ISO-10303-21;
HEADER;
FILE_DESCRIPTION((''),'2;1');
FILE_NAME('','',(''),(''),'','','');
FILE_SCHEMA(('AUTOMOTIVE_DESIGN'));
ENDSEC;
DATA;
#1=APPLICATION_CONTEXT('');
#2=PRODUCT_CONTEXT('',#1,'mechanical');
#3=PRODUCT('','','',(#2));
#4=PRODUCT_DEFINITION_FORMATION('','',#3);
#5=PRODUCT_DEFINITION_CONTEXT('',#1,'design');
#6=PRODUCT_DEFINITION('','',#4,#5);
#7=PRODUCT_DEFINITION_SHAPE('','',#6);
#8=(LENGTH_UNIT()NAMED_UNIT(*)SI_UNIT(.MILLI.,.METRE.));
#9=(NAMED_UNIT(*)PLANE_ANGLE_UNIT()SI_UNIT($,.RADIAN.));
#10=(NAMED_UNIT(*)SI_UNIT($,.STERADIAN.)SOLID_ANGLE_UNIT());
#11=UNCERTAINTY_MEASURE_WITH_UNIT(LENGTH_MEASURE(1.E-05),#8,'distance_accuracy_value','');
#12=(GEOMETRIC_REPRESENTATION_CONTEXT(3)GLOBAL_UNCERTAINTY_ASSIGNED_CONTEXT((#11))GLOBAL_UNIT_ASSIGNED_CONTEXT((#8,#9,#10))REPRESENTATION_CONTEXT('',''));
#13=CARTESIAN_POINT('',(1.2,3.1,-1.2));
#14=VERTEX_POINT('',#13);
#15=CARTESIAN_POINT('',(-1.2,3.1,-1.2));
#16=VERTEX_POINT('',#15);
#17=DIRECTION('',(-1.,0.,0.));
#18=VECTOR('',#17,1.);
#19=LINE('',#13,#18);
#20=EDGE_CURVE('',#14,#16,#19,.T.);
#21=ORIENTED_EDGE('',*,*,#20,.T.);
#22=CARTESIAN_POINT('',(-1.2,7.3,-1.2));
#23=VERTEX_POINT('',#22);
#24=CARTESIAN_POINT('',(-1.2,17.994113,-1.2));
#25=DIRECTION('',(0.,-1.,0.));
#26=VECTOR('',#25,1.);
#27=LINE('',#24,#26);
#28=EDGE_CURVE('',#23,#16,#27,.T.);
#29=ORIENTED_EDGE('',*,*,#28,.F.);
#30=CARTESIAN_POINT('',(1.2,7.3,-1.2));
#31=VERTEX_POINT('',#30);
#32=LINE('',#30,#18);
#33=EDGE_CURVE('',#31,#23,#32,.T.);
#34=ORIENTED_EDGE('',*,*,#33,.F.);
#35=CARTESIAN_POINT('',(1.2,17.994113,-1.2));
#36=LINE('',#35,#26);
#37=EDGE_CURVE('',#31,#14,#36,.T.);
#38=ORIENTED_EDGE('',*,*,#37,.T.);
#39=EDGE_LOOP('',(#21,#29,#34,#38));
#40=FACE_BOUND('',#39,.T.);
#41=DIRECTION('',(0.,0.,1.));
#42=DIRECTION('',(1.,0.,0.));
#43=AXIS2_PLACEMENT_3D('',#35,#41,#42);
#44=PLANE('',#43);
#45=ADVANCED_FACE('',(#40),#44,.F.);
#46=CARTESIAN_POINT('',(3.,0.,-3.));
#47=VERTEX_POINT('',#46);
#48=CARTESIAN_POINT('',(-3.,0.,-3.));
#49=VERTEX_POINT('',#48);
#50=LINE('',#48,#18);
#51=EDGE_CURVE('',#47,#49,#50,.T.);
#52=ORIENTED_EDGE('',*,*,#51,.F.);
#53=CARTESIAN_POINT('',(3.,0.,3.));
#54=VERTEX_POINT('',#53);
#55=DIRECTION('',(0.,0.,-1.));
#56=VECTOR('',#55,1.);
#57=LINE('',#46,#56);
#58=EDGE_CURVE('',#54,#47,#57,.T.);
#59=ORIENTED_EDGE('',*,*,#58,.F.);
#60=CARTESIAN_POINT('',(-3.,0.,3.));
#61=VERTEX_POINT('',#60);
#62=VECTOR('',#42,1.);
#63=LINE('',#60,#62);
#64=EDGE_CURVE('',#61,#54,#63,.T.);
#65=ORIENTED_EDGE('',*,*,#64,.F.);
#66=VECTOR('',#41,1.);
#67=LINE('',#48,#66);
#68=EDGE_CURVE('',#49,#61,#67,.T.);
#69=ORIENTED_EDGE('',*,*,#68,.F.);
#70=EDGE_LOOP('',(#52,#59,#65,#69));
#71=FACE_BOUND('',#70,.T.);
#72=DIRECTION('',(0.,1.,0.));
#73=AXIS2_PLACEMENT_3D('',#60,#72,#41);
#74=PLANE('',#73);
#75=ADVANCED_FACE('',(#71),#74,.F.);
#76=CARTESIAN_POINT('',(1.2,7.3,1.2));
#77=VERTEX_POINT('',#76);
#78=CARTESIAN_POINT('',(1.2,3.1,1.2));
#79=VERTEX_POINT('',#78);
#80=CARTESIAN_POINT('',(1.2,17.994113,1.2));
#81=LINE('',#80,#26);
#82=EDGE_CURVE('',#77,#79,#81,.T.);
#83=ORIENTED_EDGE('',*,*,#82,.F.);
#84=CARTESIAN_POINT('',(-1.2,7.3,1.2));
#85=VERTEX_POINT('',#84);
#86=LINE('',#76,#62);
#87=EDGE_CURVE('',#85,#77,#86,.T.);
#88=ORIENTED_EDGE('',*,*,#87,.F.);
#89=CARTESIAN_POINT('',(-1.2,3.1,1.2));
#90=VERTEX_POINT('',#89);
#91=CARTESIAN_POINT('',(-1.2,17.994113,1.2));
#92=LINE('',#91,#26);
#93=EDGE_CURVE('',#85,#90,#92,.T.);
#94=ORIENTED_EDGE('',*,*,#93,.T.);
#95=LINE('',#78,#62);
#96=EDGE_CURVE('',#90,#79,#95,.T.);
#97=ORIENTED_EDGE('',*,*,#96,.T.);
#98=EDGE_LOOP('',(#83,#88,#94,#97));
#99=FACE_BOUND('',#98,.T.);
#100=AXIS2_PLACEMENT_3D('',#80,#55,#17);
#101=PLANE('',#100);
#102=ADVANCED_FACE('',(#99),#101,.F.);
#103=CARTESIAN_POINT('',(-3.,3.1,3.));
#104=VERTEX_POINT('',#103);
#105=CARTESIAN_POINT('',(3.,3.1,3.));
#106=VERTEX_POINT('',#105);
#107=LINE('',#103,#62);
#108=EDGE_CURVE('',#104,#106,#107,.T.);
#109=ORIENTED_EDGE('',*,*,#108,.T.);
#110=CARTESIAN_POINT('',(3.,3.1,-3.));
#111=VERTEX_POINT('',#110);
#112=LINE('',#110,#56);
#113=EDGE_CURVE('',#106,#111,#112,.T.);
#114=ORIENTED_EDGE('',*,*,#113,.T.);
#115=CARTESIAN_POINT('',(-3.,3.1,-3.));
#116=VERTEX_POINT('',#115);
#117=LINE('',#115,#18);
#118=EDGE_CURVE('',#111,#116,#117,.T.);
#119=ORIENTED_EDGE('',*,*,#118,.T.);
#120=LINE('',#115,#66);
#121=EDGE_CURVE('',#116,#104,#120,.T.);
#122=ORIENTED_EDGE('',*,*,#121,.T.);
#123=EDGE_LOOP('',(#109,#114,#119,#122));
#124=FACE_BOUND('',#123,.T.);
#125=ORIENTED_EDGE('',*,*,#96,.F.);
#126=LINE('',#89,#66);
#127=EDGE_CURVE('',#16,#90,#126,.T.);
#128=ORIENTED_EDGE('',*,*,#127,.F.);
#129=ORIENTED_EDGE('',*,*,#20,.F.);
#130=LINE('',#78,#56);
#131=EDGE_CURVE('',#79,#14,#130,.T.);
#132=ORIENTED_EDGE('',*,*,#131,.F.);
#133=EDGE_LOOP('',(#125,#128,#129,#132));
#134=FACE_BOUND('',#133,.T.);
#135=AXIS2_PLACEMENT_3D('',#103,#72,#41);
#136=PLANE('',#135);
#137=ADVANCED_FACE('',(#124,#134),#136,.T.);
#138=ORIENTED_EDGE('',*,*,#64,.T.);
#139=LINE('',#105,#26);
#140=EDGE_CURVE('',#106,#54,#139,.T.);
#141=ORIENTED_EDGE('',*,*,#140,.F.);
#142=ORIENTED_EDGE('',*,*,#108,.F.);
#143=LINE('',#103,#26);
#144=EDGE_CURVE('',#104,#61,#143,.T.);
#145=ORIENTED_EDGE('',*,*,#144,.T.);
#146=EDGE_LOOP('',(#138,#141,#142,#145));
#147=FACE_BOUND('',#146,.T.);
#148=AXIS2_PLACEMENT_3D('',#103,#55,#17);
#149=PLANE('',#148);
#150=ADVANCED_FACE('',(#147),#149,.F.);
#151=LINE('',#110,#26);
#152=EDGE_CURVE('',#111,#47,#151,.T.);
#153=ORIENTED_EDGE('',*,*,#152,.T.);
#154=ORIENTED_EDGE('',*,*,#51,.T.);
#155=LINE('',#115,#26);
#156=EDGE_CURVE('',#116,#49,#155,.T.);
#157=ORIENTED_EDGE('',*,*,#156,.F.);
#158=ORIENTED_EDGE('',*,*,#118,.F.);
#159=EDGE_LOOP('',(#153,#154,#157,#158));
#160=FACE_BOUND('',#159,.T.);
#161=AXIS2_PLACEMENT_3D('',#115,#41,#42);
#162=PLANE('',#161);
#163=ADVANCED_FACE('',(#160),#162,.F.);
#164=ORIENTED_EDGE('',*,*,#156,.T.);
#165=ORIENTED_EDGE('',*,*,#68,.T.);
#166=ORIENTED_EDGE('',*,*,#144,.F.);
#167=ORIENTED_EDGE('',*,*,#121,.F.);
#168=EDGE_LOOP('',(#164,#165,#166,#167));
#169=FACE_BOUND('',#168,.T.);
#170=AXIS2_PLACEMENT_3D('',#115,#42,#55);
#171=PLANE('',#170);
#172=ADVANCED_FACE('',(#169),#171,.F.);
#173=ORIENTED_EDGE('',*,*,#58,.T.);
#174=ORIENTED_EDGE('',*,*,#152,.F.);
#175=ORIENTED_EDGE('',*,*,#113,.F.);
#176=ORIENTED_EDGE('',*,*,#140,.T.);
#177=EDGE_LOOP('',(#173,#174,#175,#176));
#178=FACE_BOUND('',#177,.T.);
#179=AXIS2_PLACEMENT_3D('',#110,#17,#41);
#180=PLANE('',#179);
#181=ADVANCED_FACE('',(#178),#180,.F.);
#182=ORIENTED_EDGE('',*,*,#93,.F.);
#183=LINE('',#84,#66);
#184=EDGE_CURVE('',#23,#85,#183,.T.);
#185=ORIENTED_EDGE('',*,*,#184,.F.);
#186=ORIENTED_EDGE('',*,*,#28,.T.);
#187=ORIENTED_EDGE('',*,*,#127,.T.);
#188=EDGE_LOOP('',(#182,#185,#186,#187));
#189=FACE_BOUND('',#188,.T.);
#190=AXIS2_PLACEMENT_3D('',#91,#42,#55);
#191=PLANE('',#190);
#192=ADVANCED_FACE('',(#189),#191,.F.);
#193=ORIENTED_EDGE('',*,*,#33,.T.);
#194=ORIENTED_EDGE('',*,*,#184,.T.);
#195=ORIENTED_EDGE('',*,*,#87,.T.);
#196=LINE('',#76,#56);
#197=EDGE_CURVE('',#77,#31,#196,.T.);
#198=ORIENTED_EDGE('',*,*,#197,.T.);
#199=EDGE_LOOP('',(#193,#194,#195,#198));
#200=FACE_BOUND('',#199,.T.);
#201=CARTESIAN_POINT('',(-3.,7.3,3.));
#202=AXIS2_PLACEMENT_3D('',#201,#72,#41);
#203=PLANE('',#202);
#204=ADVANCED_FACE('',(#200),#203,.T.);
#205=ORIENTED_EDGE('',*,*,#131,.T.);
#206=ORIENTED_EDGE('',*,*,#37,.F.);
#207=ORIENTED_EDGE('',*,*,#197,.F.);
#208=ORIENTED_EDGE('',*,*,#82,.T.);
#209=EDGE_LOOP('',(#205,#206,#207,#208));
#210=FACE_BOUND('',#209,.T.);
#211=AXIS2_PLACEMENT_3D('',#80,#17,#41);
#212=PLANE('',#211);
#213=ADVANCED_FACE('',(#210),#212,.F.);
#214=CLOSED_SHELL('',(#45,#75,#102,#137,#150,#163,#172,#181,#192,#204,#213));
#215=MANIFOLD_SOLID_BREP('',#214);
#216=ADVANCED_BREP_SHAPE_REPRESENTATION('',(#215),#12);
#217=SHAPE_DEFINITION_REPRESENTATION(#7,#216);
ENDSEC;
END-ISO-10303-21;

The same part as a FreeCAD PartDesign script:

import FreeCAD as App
import Part
import Sketcher

V = App.Vector

doc = App.newDocument("Part")
body = doc.addObject("PartDesign::Body", "Body")

# Sketch on XZ plane
sketch1 = doc.addObject("Sketcher::SketchObject", "Sketch")
body.addObject(sketch1)
sketch1.AttachmentSupport = (doc.XZ_Plane, [""])
sketch1.MapMode = "FlatFace"
sketch1.addGeometry([
    Part.LineSegment(V(-3, -3, 0), V(-3, 3, 0)),
    Part.LineSegment(V(-3, 3, 0), V(3, 3, 0)),
    Part.LineSegment(V(3, 3, 0), V(3, -3, 0)),
    Part.LineSegment(V(3, -3, 0), V(-3, -3, 0)),
], False)
sketch1.addConstraint([
    Sketcher.Constraint("Coincident", 0, 2, 1, 1),
    Sketcher.Constraint("Coincident", 1, 2, 2, 1),
    Sketcher.Constraint("Coincident", 2, 2, 3, 1),
    Sketcher.Constraint("Coincident", 3, 2, 0, 1),
    Sketcher.Constraint("Vertical", 0),
    Sketcher.Constraint("Horizontal", 1),
    Sketcher.Constraint("Vertical", 2),
    Sketcher.Constraint("Horizontal", 3),
    Sketcher.Constraint("Symmetric", 0, 2, 2, 2, -1, 1),
    Sketcher.Constraint("Equal", 3, 0),
    Sketcher.Constraint("DistanceX", 1, 1, 1, 2, 6.0),
])
pad1 = doc.addObject("PartDesign::Pad", "Pad")
body.addObject(pad1)
pad1.Profile = sketch1
pad1.Length = 3.1
pad1.Reversed = True

# Sketch on XZ plane
sketch2 = doc.addObject("Sketcher::SketchObject", "Sketch001")
body.addObject(sketch2)
sketch2.AttachmentSupport = (doc.XZ_Plane, [""])
sketch2.MapMode = "FlatFace"
sketch2.AttachmentOffset = App.Placement(V(0, 0, -3.1), App.Rotation())
sketch2.addGeometry([
    Part.LineSegment(V(1.2, 1.2, 0), V(1.2, -1.2, 0)),
    Part.LineSegment(V(1.2, -1.2, 0), V(-1.2, -1.2, 0)),
    Part.LineSegment(V(-1.2, -1.2, 0), V(-1.2, 1.2, 0)),
    Part.LineSegment(V(-1.2, 1.2, 0), V(1.2, 1.2, 0)),
], False)
sketch2.addConstraint([
    Sketcher.Constraint("Coincident", 0, 2, 1, 1),
    Sketcher.Constraint("Coincident", 1, 2, 2, 1),
    Sketcher.Constraint("Coincident", 2, 2, 3, 1),
    Sketcher.Constraint("Coincident", 3, 2, 0, 1),
    Sketcher.Constraint("Vertical", 0),
    Sketcher.Constraint("Horizontal", 1),
    Sketcher.Constraint("Vertical", 2),
    Sketcher.Constraint("Horizontal", 3),
    Sketcher.Constraint("Symmetric", 0, 2, 2, 2, -1, 1),
    Sketcher.Constraint("Equal", 3, 0),
    Sketcher.Constraint("DistanceX", 1, 2, 1, 1, 2.4),
])
pad2 = doc.addObject("PartDesign::Pad", "Pad001")
body.addObject(pad2)
pad2.Profile = sketch2
pad2.Length = 4.2
pad2.Reversed = True

doc.recompute()
